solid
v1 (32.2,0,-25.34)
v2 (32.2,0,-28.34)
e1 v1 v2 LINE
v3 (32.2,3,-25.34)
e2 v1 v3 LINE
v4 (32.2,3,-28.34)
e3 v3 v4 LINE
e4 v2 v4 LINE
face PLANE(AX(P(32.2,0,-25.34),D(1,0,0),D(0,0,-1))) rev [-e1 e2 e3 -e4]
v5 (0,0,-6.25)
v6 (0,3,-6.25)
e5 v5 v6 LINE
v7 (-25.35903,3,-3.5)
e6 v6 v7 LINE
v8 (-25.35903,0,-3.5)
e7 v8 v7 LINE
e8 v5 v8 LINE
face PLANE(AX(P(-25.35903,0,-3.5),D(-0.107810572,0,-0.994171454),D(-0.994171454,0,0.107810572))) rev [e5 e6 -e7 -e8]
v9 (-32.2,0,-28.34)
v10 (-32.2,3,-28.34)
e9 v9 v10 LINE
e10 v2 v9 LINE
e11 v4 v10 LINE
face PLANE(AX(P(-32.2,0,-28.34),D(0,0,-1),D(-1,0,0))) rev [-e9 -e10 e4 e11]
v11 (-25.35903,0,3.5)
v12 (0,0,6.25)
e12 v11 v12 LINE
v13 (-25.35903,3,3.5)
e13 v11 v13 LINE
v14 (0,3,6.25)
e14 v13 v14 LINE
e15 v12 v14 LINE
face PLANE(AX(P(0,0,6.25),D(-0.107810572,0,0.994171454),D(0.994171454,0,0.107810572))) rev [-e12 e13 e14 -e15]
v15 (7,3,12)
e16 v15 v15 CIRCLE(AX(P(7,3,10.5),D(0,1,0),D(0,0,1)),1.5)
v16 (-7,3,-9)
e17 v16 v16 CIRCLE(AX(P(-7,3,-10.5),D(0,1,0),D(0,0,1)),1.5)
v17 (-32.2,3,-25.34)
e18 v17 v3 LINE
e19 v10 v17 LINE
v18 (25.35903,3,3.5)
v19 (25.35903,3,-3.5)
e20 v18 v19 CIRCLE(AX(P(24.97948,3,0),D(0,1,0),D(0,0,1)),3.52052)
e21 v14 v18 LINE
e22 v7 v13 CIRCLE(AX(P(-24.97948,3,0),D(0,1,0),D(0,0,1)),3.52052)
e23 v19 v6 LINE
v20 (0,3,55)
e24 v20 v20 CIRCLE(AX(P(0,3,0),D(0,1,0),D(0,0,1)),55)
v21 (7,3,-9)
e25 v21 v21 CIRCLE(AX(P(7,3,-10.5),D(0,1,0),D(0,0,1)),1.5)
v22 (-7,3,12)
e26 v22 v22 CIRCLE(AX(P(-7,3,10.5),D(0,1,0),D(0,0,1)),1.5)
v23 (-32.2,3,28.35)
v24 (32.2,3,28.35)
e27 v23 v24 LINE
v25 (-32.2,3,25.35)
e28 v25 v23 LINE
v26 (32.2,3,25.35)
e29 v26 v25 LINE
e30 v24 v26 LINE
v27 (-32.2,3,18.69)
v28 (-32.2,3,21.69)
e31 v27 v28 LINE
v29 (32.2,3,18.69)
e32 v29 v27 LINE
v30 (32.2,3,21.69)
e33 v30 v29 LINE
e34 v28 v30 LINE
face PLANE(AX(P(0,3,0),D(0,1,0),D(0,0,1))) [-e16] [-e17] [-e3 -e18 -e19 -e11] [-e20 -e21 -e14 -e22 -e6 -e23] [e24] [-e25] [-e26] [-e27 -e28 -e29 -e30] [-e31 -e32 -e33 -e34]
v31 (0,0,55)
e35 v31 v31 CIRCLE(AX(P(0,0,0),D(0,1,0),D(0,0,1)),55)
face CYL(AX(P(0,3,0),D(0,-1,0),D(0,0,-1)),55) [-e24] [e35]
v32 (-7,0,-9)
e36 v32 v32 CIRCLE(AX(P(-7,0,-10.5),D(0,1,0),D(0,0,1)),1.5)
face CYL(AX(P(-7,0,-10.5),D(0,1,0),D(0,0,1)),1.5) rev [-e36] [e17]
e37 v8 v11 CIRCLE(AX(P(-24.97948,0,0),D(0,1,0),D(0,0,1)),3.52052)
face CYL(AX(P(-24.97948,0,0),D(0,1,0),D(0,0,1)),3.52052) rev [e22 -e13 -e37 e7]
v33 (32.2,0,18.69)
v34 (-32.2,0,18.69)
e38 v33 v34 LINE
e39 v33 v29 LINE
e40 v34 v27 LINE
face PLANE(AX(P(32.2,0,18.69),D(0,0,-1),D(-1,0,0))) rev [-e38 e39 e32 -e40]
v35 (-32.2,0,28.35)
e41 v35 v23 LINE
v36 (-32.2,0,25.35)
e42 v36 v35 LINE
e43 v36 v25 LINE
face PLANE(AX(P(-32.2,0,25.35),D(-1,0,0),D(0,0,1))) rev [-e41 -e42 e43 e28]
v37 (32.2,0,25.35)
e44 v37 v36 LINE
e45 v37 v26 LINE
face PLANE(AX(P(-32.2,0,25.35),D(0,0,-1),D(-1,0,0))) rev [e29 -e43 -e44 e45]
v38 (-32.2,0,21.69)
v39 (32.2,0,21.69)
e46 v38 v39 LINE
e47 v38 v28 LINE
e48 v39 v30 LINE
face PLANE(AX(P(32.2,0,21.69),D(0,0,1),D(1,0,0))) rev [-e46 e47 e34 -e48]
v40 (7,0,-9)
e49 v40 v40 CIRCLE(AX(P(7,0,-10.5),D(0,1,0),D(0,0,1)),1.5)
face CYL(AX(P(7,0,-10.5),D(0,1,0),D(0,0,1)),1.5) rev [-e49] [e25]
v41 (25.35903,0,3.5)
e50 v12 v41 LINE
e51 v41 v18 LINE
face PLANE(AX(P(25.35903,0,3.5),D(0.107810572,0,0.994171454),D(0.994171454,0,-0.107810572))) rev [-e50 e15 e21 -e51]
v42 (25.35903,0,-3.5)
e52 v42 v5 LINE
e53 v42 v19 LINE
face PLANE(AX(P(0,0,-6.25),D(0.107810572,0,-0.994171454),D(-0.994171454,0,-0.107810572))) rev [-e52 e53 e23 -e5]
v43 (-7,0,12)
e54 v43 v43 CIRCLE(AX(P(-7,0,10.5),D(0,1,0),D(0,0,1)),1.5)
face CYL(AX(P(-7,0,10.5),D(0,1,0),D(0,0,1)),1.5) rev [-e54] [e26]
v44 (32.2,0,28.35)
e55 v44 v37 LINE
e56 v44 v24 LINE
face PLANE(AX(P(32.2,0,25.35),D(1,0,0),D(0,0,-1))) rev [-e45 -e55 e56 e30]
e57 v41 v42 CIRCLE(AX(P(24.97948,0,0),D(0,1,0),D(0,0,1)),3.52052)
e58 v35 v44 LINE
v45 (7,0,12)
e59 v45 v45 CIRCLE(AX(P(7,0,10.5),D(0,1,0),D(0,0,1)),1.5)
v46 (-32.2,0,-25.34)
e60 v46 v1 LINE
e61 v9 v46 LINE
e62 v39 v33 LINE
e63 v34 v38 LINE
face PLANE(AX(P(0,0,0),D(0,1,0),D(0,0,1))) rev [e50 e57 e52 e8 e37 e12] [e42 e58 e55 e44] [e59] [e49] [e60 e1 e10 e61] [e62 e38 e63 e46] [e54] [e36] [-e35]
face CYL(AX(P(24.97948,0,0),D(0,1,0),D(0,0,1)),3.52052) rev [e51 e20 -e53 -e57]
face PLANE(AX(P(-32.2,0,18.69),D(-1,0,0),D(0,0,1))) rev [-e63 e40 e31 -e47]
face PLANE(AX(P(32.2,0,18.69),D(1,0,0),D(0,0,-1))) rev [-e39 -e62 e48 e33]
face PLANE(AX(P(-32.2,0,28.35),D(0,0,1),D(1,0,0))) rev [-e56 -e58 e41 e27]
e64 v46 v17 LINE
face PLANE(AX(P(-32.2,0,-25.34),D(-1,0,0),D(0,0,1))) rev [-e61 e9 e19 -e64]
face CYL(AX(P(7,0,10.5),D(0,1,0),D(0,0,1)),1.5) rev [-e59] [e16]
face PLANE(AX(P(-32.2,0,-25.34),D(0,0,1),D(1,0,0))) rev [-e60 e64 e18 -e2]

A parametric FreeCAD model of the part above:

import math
import FreeCAD as App
import Part
import Sketcher
Q = App.Units.Quantity


def add_polygon(sketch, points):
    """Adds a closed chain of lines whose ends are joined by coincident constraints."""
    first, n = sketch.GeometryCount, len(points)
    for a, b in zip(points, points[1:] + points[:1]):
        sketch.addGeometry(Part.LineSegment(App.Vector(*a, 0), App.Vector(*b, 0)), False)
    for i in range(n):
        sketch.addConstraint(Sketcher.Constraint("Coincident", first + i, 2, first + (i + 1) % n, 1))

doc = App.newDocument("Part")
body = doc.addObject("PartDesign::Body", "Body")

sketch1 = body.newObject("Sketcher::SketchObject", "Sketch")
sketch1.AttachmentSupport = (doc.getObject("XZ_Plane"), [""])
sketch1.MapMode = "FlatFace"
sketch1.addGeometry(Part.Circle(App.Vector(0, 0, 0), App.Vector(0, 0, 1), 55), False)
sketch1.addConstraint(Sketcher.Constraint("Coincident", 0, 3, -1, 1))
sketch1.addConstraint(Sketcher.Constraint("Diameter", 0, Q("110 mm")))
pad1 = body.newObject("PartDesign::Pad", "Pad")
pad1.Profile = sketch1
pad1.Length = 3
pad1.Reversed = True

sketch2 = body.newObject("Sketcher::SketchObject", "Sketch001")
sketch2.AttachmentSupport = (doc.getObject("XZ_Plane"), [""])
sketch2.MapMode = "FlatFace"
sketch2.AttachmentOffset = App.Placement(App.Vector(0, 0, -3), App.Rotation())
sketch2.addGeometry(Part.LineSegment(App.Vector(0, -6.2, 0), App.Vector(-25.4, -3.5, 0)), False)
sketch2.addGeometry(Part.ArcOfCircle(Part.Circle(App.Vector(-25, 0, 0), App.Vector(0, 0, 1), 3.5), math.radians(96), math.radians(264)), False)
sketch2.addGeometry(Part.LineSegment(App.Vector(-25.4, 3.5, 0), App.Vector(0, 6.2, 0)), False)
sketch2.addGeometry(Part.LineSegment(App.Vector(0, 6.2, 0), App.Vector(25.4, 3.5, 0)), False)
sketch2.addGeometry(Part.ArcOfCircle(Part.Circle(App.Vector(25, 0, 0), App.Vector(0, 0, 1), 3.5), math.radians(-84), math.radians(84)), False)
sketch2.addGeometry(Part.LineSegment(App.Vector(25.4, -3.5, 0), App.Vector(0, -6.2, 0)), False)
sketch2.addConstraint(Sketcher.Constraint("Tangent", 0, 2, 1, 2))
sketch2.addConstraint(Sketcher.Constraint("Tangent", 1, 1, 2, 1))
sketch2.addConstraint(Sketcher.Constraint("Coincident", 2, 2, 3, 1))
sketch2.addConstraint(Sketcher.Constraint("Tangent", 3, 2, 4, 2))
sketch2.addConstraint(Sketcher.Constraint("Tangent", 4, 1, 5, 1))
sketch2.addConstraint(Sketcher.Constraint("Coincident", 5, 2, 0, 1))
sketch2.addConstraint(Sketcher.Constraint("Equal", 1, 4))
sketch2.addConstraint(Sketcher.Constraint("Symmetric", 1, 3, 4, 3, -1, 1))
sketch2.addConstraint(Sketcher.Constraint("Symmetric", 2, 2, 5, 2, -1, 1))
sketch2.addConstraint(Sketcher.Constraint("Symmetric", 1, 1, 3, 2, -2))
sketch2.addConstraint(Sketcher.Constraint("DistanceY", 0, 2, 1, 1, Q("7 mm")))
sketch2.addConstraint(Sketcher.Constraint("DistanceY", 5, 2, 2, 2, Q("12.5 mm")))
sketch2.addConstraint(Sketcher.Constraint("DistanceX", 1, 3, -1, 1, Q("24.97948 mm")))
pocket1 = body.newObject("PartDesign::Pocket", "Pocket")
pocket1.Profile = sketch2
pocket1.Length = 3
pocket1.Reversed = True

sketch3 = body.newObject("Sketcher::SketchObject", "Sketch002")
sketch3.AttachmentSupport = (doc.getObject("XZ_Plane"), [""])
sketch3.MapMode = "FlatFace"
sketch3.AttachmentOffset = App.Placement(App.Vector(0, 0, -3), App.Rotation())
sketch3.addGeometry(Part.Circle(App.Vector(-7, 10.5, 0), App.Vector(0, 0, 1), 1.5), False)
sketch3.addGeometry(Part.Circle(App.Vector(7, 10.5, 0), App.Vector(0, 0, 1), 1.5), False)
sketch3.addGeometry(Part.Circle(App.Vector(-7, -10.5, 0), App.Vector(0, 0, 1), 1.5), False)
sketch3.addGeometry(Part.Circle(App.Vector(7, -10.5, 0), App.Vector(0, 0, 1), 1.5), False)
add_polygon(sketch3, [(-32.2, 18.7), (-32.2, 21.7), (32.2, 21.7), (32.2, 18.7)])
add_polygon(sketch3, [(-32.2, 25.4), (-32.2, 28.4), (32.2, 28.4), (32.2, 25.4)])
add_polygon(sketch3, [(-32.2, -28.3), (-32.2, -25.3), (32.2, -25.3), (32.2, -28.3)])
sketch3.addConstraint(Sketcher.Constraint("Vertical", 4))
sketch3.addConstraint(Sketcher.Constraint("Horizontal", 5))
sketch3.addConstraint(Sketcher.Constraint("Vertical", 6))
sketch3.addConstraint(Sketcher.Constraint("Horizontal", 7))
sketch3.addConstraint(Sketcher.Constraint("Vertical", 8))
sketch3.addConstraint(Sketcher.Constraint("Horizontal", 9))
sketch3.addConstraint(Sketcher.Constraint("Vertical", 10))
sketch3.addConstraint(Sketcher.Constraint("Horizontal", 11))
sketch3.addConstraint(Sketcher.Constraint("Vertical", 12))
sketch3.addConstraint(Sketcher.Constraint("Horizontal", 13))
sketch3.addConstraint(Sketcher.Constraint("Vertical", 14))
sketch3.addConstraint(Sketcher.Constraint("Horizontal", 15))
sketch3.addConstraint(Sketcher.Constraint("Equal", 0, 1))
sketch3.addConstraint(Sketcher.Constraint("Equal", 1, 2))
sketch3.addConstraint(Sketcher.Constraint("Equal", 2, 3))
sketch3.addConstraint(Sketcher.Constraint("Symmetric", 1, 3, 2, 3, -1, 1))
sketch3.addConstraint(Sketcher.Constraint("Symmetric", 0, 3, 3, 3, -1, 1))
sketch3.addConstraint(Sketcher.Constraint("Symmetric", 0, 3, 1, 3, -2))
sketch3.addConstraint(Sketcher.Constraint("Vertical", 7, 2, 8, 2))
sketch3.addConstraint(Sketcher.Constraint("Vertical", 6, 2, 9, 2))
sketch3.addConstraint(Sketcher.Constraint("Vertical", 11, 2, 12, 2))
sketch3.addConstraint(Sketcher.Constraint("Vertical", 10, 2, 13, 2))
sketch3.addConstraint(Sketcher.Constraint("Equal", 6, 8))
sketch3.addConstraint(Sketcher.Constraint("Equal", 10, 12))
sketch3.addConstraint(Sketcher.Constraint("Diameter", 0, Q("3 mm")))
sketch3.addConstraint(Sketcher.Constraint("DistanceY", 4, 1, 4, 2, Q("3 mm")))
sketch3.addConstraint(Sketcher.Constraint("DistanceX", 5, 1, 5, 2, Q("64.4 mm")))
sketch3.addConstraint(Sketcher.Constraint("DistanceX", 0, 3, -1, 1, Q("7 mm")))
sketch3.addConstraint(Sketcher.Constraint("DistanceY", 2, 3, 0, 3, Q("21 mm")))
sketch3.addConstraint(Sketcher.Constraint("DistanceX", 4, 2, -1, 1, Q("32.2 mm")))
sketch3.addConstraint(Sketcher.Constraint("DistanceY", -1, 1, 4, 2, Q("21.69 mm")))
sketch3.addConstraint(Sketcher.Constraint("DistanceY", -1, 1, 8, 2, Q("28.35 mm")))
sketch3.addConstraint(Sketcher.Constraint("DistanceY", 12, 2, -1, 1, Q("25.34 mm")))
pocket2 = body.newObject("PartDesign::Pocket", "Pocket001")
pocket2.Profile = sketch3
pocket2.Length = 3
pocket2.Reversed = True

doc.recompute()
